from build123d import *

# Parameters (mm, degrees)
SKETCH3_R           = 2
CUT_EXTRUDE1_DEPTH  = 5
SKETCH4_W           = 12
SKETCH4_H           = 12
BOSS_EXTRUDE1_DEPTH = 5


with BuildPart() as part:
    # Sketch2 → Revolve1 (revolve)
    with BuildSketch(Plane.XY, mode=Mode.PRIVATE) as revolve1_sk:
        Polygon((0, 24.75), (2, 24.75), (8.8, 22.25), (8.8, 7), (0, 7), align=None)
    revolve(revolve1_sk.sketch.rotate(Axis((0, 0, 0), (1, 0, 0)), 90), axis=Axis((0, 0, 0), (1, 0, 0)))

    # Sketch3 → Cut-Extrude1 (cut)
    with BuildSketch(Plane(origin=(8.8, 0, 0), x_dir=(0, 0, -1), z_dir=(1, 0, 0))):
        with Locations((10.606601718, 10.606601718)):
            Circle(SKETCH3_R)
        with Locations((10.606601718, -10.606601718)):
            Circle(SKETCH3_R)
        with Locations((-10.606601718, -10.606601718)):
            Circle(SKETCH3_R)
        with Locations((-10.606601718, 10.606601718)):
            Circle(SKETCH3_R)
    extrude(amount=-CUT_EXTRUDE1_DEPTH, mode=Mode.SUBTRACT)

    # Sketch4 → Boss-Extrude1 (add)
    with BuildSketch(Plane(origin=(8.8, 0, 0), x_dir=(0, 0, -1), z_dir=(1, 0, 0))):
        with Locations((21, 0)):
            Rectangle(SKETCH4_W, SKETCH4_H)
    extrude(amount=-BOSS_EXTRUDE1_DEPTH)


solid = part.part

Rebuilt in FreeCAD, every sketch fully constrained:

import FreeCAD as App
import Part
import Sketcher
Q = App.Units.Quantity

doc = App.newDocument("Part")
params = doc.addObject("Spreadsheet::Sheet", "Params")
for row, (alias, value) in enumerate([
    ("sketch1_width", "2 mm"),
    ("sketch1_width2", "8.8 mm"),
    ("sketch1_height", "17.75 mm"),
    ("sketch1_height2", "15.25 mm"),
    ("revolution_angle", "360 deg"),
    ("sketch2_diameter", "4 mm"),
    ("pocket1_length", "5 mm"),
    ("sketch3_width", "12 mm"),
    ("pad1_length", "5 mm"),
], start=1):
    params.set(f"A{row}", alias)
    params.set(f"B{row}", "=" + value)
    params.setAlias(f"B{row}", alias)

body = doc.addObject("PartDesign::Body", "Body")

# Sketch on XY plane
sketch1 = doc.addObject("Sketcher::SketchObject", "Sketch")
body.addObject(sketch1)
sketch1.AttachmentSupport = (doc.XY_Plane, [""])
sketch1.MapMode = "FlatFace"
sketch1.addGeometry([
    Part.LineSegment(App.Vector(2, 24.8, 0), App.Vector(0, 24.8, 0)),  # 0
    Part.LineSegment(App.Vector(0, 24.8, 0), App.Vector(0, 7, 0)),  # 1
    Part.LineSegment(App.Vector(0, 7, 0), App.Vector(8.8, 7, 0)),  # 2
    Part.LineSegment(App.Vector(8.8, 7, 0), App.Vector(8.8, 22.2, 0)),  # 3
    Part.LineSegment(App.Vector(8.8, 22.2, 0), App.Vector(2, 24.8, 0)),  # 4
], False)
sketch1.addConstraint([
    Sketcher.Constraint("Coincident", 0, 2, 1, 1),
    Sketcher.Constraint("Coincident", 1, 2, 2, 1),
    Sketcher.Constraint("Coincident", 2, 2, 3, 1),
    Sketcher.Constraint("Coincident", 3, 2, 4, 1),
    Sketcher.Constraint("Coincident", 4, 2, 0, 1),
    Sketcher.Constraint("Horizontal", 0),
    Sketcher.Constraint("Vertical", 1),
    Sketcher.Constraint("Horizontal", 2),
    Sketcher.Constraint("Vertical", 3),
    Sketcher.Constraint("PointOnObject", 0, 2, -2),
    Sketcher.Constraint("DistanceX", 0, 2, 0, 1, Q("2 mm")),
    Sketcher.Constraint("DistanceX", 2, 1, 2, 2, Q("8.8 mm")),
    Sketcher.Constraint("DistanceY", -1, 1, 1, 2, Q("7 mm")),
    Sketcher.Constraint("DistanceY", 1, 2, 1, 1, Q("17.75 mm")),
    Sketcher.Constraint("DistanceY", 3, 1, 3, 2, Q("15.25 mm")),
])
sketch1.setExpression("Constraints[10]", "Params.sketch1_width")
sketch1.setExpression("Constraints[11]", "Params.sketch1_width2")
sketch1.setExpression("Constraints[13]", "Params.sketch1_height")
sketch1.setExpression("Constraints[14]", "Params.sketch1_height2")
revolution = doc.addObject("PartDesign::Revolution", "Revolution")
body.addObject(revolution)
revolution.Profile = sketch1
revolution.ReferenceAxis = (sketch1, ["H_Axis"])
revolution.setExpression("Angle", "Params.revolution_angle")

# Sketch on YZ plane
sketch2 = doc.addObject("Sketcher::SketchObject", "Sketch001")
body.addObject(sketch2)
sketch2.AttachmentSupport = (doc.YZ_Plane, [""])
sketch2.MapMode = "FlatFace"
sketch2.AttachmentOffset = App.Placement(App.Vector(0, 0, 8.8), App.Rotation())
sketch2.addGeometry([
    Part.Circle(App.Vector(10.6, -10.6, 0), App.Vector(0, 0, 1), 2),
    Part.Circle(App.Vector(-10.6, -10.6, 0), App.Vector(0, 0, 1), 2),
    Part.Circle(App.Vector(-10.6, 10.6, 0), App.Vector(0, 0, 1), 2),
    Part.Circle(App.Vector(10.6, 10.6, 0), App.Vector(0, 0, 1), 2),
], False)
sketch2.addConstraint([
    Sketcher.Constraint("Equal", 0, 1),
    Sketcher.Constraint("Equal", 1, 2),
    Sketcher.Constraint("Equal", 2, 3),
    Sketcher.Constraint("Symmetric", 0, 3, 2, 3, -1, 1),
    Sketcher.Constraint("Symmetric", 1, 3, 3, 3, -1, 1),
    Sketcher.Constraint("Symmetric", 0, 3, 1, 3, -2),
    Sketcher.Constraint("Diameter", 0, Q("4 mm")),
    Sketcher.Constraint("DistanceX", -1, 1, 0, 3, Q("10.606602 mm")),
    Sketcher.Constraint("DistanceY", 0, 3, -1, 1, Q("10.606602 mm")),
])
sketch2.setExpression("Constraints[6]", "Params.sketch2_diameter")
pocket1 = doc.addObject("PartDesign::Pocket", "Pocket")
body.addObject(pocket1)
pocket1.Profile = sketch2
pocket1.setExpression("Length", "Params.pocket1_length")

# Sketch on YZ plane
sketch3 = doc.addObject("Sketcher::SketchObject", "Sketch002")
body.addObject(sketch3)
sketch3.AttachmentSupport = (doc.YZ_Plane, [""])
sketch3.MapMode = "FlatFace"
sketch3.AttachmentOffset = App.Placement(App.Vector(0, 0, 8.8), App.Rotation())
sketch3.addGeometry([
    Part.LineSegment(App.Vector(6, -15, 0), App.Vector(-6, -15, 0)),
    Part.LineSegment(App.Vector(-6, -15, 0), App.Vector(-6, -27, 0)),
    Part.LineSegment(App.Vector(-6, -27, 0), App.Vector(6, -27, 0)),
    Part.LineSegment(App.Vector(6, -27, 0), App.Vector(6, -15, 0)),
], False)
sketch3.addConstraint([
    Sketcher.Constraint("Coincident", 0, 2, 1, 1),
    Sketcher.Constraint("Coincident", 1, 2, 2, 1),
    Sketcher.Constraint("Coincident", 2, 2, 3, 1),
    Sketcher.Constraint("Coincident", 3, 2, 0, 1),
    Sketcher.Constraint("Horizontal", 0),
    Sketcher.Constraint("Vertical", 1),
    Sketcher.Constraint("Horizontal", 2),
    Sketcher.Constraint("Vertical", 3),
    Sketcher.Constraint("Equal", 2, 1),
    Sketcher.Constraint("DistanceX", 0, 2, 0, 1, Q("12 mm")),
    Sketcher.Constraint("DistanceX", 0, 2, -1, 1, Q("6 mm")),
    Sketcher.Constraint("DistanceY", 0, 2, -1, 1, Q("15 mm")),
])
sketch3.setExpression("Constraints[9]", "Params.sketch3_width")
pad1 = doc.addObject("PartDesign::Pad", "Pad")
body.addObject(pad1)
pad1.Profile = sketch3
pad1.setExpression("Length", "Params.pad1_length")
pad1.Reversed = True

doc.recompute()
